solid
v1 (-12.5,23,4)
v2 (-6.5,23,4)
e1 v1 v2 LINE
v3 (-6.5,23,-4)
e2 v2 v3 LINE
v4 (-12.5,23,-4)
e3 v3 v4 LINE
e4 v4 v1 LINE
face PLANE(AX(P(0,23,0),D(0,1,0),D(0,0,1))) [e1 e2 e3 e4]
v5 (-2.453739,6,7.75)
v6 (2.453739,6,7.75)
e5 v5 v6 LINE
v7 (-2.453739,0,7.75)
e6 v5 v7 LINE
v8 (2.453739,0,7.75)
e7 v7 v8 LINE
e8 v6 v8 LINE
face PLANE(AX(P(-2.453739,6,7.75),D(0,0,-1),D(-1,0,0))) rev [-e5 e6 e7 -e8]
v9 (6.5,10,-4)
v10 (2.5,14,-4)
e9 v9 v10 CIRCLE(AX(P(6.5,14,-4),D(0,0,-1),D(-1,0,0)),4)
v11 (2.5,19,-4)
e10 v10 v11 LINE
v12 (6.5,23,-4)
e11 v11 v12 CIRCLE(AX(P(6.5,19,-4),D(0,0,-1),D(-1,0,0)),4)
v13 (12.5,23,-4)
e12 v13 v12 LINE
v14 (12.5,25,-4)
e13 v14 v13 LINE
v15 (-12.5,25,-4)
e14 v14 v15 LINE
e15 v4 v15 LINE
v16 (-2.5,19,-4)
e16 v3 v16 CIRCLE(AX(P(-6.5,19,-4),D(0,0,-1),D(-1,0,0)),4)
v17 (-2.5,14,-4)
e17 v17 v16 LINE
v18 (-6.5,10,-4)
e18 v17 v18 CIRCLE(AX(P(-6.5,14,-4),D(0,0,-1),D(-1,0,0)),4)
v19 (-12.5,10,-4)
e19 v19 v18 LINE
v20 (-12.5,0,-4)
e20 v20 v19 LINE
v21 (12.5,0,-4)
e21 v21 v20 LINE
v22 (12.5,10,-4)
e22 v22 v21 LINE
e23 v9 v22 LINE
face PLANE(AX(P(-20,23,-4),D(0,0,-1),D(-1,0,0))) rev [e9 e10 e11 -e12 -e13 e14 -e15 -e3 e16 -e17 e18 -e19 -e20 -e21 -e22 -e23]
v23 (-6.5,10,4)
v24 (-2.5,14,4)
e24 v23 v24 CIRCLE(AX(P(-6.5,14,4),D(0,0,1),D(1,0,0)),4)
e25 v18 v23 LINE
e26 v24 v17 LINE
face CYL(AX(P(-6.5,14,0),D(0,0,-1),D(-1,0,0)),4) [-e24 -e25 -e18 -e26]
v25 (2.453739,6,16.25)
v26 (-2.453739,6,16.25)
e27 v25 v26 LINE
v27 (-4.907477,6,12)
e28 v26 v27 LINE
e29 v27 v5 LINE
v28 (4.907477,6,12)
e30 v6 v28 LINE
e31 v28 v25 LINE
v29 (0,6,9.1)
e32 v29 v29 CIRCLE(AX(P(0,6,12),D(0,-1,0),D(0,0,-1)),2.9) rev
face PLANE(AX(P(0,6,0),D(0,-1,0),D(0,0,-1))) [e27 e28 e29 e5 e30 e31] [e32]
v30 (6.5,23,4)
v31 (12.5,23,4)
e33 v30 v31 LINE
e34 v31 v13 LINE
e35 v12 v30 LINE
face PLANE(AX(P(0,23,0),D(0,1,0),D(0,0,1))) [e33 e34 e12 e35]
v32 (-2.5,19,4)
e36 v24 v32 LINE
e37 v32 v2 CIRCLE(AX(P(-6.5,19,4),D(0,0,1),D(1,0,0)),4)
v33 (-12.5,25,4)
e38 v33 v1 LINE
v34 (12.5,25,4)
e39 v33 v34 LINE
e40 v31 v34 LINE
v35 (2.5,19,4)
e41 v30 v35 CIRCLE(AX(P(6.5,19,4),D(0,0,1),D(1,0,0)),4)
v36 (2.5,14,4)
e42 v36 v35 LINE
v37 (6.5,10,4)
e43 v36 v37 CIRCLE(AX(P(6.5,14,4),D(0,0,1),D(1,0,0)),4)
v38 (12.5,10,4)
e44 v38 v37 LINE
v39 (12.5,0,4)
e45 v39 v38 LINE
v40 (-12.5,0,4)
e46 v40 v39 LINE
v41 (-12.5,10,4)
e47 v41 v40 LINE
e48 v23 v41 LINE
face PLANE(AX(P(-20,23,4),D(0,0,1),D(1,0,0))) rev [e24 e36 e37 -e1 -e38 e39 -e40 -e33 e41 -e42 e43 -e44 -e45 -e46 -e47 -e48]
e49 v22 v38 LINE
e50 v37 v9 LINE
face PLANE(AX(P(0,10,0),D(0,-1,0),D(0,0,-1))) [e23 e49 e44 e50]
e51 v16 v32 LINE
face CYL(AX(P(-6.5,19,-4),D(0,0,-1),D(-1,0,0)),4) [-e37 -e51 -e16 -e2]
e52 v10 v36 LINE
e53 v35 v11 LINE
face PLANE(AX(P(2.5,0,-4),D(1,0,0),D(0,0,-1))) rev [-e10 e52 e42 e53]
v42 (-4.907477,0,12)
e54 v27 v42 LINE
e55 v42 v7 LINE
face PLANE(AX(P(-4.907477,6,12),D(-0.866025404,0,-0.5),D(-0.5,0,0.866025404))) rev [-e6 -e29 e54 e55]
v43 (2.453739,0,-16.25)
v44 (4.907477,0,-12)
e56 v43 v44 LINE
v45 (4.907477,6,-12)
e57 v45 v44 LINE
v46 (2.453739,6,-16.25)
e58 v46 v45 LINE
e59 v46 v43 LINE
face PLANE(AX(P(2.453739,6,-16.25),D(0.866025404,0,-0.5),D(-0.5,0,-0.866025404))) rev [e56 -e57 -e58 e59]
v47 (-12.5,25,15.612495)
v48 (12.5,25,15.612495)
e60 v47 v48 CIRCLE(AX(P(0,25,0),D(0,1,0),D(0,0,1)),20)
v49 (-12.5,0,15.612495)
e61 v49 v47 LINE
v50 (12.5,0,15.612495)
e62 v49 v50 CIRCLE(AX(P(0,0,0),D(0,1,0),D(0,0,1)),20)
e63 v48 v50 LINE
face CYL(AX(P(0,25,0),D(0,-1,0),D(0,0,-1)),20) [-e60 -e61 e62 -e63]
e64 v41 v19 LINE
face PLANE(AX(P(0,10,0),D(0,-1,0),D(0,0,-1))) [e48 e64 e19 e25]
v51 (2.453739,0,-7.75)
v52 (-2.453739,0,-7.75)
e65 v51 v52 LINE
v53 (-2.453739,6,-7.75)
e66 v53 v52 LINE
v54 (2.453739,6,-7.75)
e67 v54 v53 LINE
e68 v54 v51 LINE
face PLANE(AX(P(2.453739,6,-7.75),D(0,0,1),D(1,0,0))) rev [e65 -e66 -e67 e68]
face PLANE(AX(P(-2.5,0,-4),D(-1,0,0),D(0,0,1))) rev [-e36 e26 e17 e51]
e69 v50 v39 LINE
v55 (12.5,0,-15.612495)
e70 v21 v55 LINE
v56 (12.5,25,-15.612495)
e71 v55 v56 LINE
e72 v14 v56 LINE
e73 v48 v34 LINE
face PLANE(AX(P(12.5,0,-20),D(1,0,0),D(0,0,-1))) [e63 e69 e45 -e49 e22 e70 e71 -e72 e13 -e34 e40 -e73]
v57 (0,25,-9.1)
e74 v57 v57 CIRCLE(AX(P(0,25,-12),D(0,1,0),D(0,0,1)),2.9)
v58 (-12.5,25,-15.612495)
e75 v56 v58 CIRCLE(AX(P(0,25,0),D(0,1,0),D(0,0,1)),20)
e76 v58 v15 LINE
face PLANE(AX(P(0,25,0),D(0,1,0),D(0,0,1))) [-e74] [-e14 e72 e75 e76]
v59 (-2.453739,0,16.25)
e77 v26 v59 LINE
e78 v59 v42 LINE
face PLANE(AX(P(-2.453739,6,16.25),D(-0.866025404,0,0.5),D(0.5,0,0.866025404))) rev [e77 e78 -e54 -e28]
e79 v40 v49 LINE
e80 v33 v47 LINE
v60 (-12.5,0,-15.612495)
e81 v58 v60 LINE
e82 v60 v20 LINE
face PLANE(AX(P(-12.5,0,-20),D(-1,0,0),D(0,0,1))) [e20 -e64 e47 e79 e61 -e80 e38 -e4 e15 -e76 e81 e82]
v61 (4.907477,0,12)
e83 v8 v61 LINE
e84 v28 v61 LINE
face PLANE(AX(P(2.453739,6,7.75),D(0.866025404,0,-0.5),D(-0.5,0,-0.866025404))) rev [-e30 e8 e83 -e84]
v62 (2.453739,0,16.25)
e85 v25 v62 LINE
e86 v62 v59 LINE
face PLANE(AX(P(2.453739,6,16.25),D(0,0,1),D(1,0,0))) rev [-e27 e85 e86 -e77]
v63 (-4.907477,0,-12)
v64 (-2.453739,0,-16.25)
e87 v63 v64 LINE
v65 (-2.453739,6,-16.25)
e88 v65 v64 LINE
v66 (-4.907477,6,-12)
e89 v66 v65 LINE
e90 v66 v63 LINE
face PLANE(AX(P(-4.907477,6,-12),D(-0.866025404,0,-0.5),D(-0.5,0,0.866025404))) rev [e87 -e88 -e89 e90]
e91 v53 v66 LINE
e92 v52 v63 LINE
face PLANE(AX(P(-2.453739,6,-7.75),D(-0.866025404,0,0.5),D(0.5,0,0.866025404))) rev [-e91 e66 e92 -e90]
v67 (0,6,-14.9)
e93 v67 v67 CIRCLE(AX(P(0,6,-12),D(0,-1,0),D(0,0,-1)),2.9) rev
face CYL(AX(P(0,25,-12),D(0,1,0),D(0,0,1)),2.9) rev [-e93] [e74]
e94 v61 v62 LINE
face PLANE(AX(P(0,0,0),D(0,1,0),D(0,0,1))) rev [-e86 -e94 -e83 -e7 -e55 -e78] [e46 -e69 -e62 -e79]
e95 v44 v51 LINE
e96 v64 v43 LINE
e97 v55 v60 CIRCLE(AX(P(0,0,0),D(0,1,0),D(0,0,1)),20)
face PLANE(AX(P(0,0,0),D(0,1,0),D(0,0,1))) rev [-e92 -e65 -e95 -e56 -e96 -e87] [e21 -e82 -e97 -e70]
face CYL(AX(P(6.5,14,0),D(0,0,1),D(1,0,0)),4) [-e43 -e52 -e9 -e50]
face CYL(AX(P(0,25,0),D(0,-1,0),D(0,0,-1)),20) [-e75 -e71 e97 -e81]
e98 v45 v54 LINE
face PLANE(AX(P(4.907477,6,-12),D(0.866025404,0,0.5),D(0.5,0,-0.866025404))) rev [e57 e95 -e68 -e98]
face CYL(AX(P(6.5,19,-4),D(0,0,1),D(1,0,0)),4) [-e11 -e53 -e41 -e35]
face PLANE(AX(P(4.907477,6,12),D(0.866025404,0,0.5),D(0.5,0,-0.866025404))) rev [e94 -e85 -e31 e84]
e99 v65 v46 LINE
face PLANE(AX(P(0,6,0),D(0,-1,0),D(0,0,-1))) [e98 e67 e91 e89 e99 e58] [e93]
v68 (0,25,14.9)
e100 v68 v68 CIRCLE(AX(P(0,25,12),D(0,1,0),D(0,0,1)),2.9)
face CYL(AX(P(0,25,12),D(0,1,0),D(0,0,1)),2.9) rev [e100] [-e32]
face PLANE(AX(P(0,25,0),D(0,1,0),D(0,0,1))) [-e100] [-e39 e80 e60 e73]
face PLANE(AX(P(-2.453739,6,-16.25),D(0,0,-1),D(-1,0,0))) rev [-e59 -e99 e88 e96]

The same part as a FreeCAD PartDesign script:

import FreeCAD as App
import Part
import Sketcher
from FreeCAD import Vector
Q = App.Units.Quantity


def edges_at(feature, points):
    """Names of the edges that pass closest to the given points."""
    edges = feature.Shape.Edges
    near = lambda p: min(range(len(edges)), key=lambda i: edges[i].distToShape(Part.Vertex(*p))[0])
    return sorted({f"Edge{near(p) + 1}" for p in points})


def add_polygon(sketch, points):
    """Adds a closed chain of lines whose ends are joined by coincident constraints."""
    first, n = sketch.GeometryCount, len(points)
    for a, b in zip(points, points[1:] + points[:1]):
        sketch.addGeometry(Part.LineSegment(App.Vector(*a, 0), App.Vector(*b, 0)), False)
    for i in range(n):
        sketch.addConstraint(Sketcher.Constraint("Coincident", first + i, 2, first + (i + 1) % n, 1))

doc = App.newDocument("Part")
params = doc.addObject("Spreadsheet::Sheet", "Params")
for row, (alias, value) in enumerate([
    ("sketch1_diameter", "40 mm"),
    ("pad1_length", "25 mm"),
    ("sketch2_width", "40 mm"),
    ("sketch2_height", "8 mm"),
    ("pocket1_length", "2 mm"),
    ("sketch3_diameter", "5.8 mm"),
    ("hole_diameter", "5.8 mm"),
    ("pocket2_length", "6 mm"),
    ("sketch5_width", "5 mm"),
    ("sketch5_height", "8 mm"),
    ("sketch6_width", "40 mm"),
    ("sketch6_height", "8 mm"),
    ("pocket4_length", "10 mm"),
    ("fillet_radius", "4 mm"),
    ("sketch7_width", "25 mm"),
    ("sketch7_height", "40 mm"),
    ("sketch7_width2", "54.37 mm"),
], start=1):
    params.set(f"A{row}", alias)
    params.set(f"B{row}", "=" + value)
    params.setAlias(f"B{row}", alias)

body = doc.addObject("PartDesign::Body", "Body")

sketch1 = body.newObject("Sketcher::SketchObject", "Sketch")
sketch1.AttachmentSupport = (doc.getObject("XZ_Plane"), [""])
sketch1.MapMode = "FlatFace"
sketch1.addGeometry(Part.Circle(Vector(0, 0, 0), Vector(0, 0, 1), 20), False)
sketch1.addConstraint(Sketcher.Constraint("Coincident", 0, 3, -1, 1))
sketch1.addConstraint(Sketcher.Constraint("Diameter", 0, 40.0))
sketch1.setExpression("Constraints[1]", "Params.sketch1_diameter")
pad1 = body.newObject("PartDesign::Pad", "Pad")
pad1.Profile = sketch1
pad1.setExpression("Length", "Params.pad1_length")
pad1.Reversed = True

sketch2 = body.newObject("Sketcher::SketchObject", "Sketch001")
sketch2.AttachmentSupport = (doc.getObject("XZ_Plane"), [""])
sketch2.MapMode = "FlatFace"
sketch2.AttachmentOffset = App.Placement(Vector(0, 0, -25), App.Rotation())
add_polygon(sketch2, [(-20, -4), (-20, 4), (20, 4), (20, -4)])
sketch2.addConstraint(Sketcher.Constraint("Vertical", 0))
sketch2.addConstraint(Sketcher.Constraint("Horizontal", 1))
sketch2.addConstraint(Sketcher.Constraint("Vertical", 2))
sketch2.addConstraint(Sketcher.Constraint("Horizontal", 3))
sketch2.addConstraint(Sketcher.Constraint("Symmetric", 0, 2, 2, 2, -1, 1))
sketch2.addConstraint(Sketcher.Constraint("DistanceX", 1, 1, 1, 2, 40.0))
sketch2.addConstraint(Sketcher.Constraint("DistanceY", 0, 1, 0, 2, 8.0))
sketch2.setExpression("Constraints[9]", "Params.sketch2_width")
sketch2.setExpression("Constraints[10]", "Params.sketch2_height")
pocket1 = body.newObject("PartDesign::Pocket", "Pocket")
pocket1.Profile = sketch2
pocket1.setExpression("Length", "Params.pocket1_length")
pocket1.Reversed = True

sketch3 = body.newObject("Sketcher::SketchObject", "Sketch002")
sketch3.AttachmentSupport = (doc.getObject("XZ_Plane"), [""])
sketch3.MapMode = "FlatFace"
sketch3.AttachmentOffset = App.Placement(Vector(0, 0, -25), App.Rotation())
sketch3.addGeometry(Part.Circle(Vector(0, -12, 0), Vector(0, 0, 1), 2.9), False)
sketch3.addGeometry(Part.Circle(Vector(0, 12, 0), Vector(0, 0, 1), 2.9), False)
sketch3.addConstraint(Sketcher.Constraint("Equal", 0, 1))
sketch3.addConstraint(Sketcher.Constraint("Symmetric", 0, 3, 1, 3, -1, 1))
sketch3.addConstraint(Sketcher.Constraint("PointOnObject", 0, 3, -2))
sketch3.addConstraint(Sketcher.Constraint("Diameter", 0, 5.8))
sketch3.addConstraint(Sketcher.Constraint("DistanceY", 0, 3, -1, 1, 12.0))
sketch3.setExpression("Constraints[3]", "Params.sketch3_diameter")
doc.recompute()
hole = body.newObject("PartDesign::Hole", "Hole")
hole.Profile = sketch3
hole.ThreadType = "None"
hole.setExpression("Diameter", "Params.hole_diameter")
hole.DepthType = "ThroughAll"
hole.Reversed = True

sketch4 = body.newObject("Sketcher::SketchObject", "Sketch003")
sketch4.AttachmentSupport = (doc.getObject("XZ_Plane"), [""])
sketch4.MapMode = "FlatFace"
add_polygon(sketch4, [(4.9, 12), (2.5, 16.2), (-2.5, 16.2), (-4.9, 12), (-2.5, 7.8), (2.5, 7.8)])
add_polygon(sketch4, [(4.9, -12), (2.5, -7.8), (-2.5, -7.8), (-4.9, -12), (-2.5, -16.2), (2.5, -16.2)])
sketch4.addConstraint(Sketcher.Constraint("Horizontal", 1))
sketch4.addConstraint(Sketcher.Constraint("Horizontal", 4))
sketch4.addConstraint(Sketcher.Constraint("Horizontal", 7))
sketch4.addConstraint(Sketcher.Constraint("Horizontal", 10))
sketch4.addConstraint(Sketcher.Constraint("Symmetric", 3, 2, 6, 2, -1, 1))
sketch4.addConstraint(Sketcher.Constraint("Symmetric", 5, 2, 8, 2, -1, 1))
sketch4.addConstraint(Sketcher.Constraint("Symmetric", 0, 2, 9, 2, -1, 1))
sketch4.addConstraint(Sketcher.Constraint("Symmetric", 2, 2, 11, 2, -1, 1))
sketch4.addConstraint(Sketcher.Constraint("Symmetric", 2, 2, 5, 2, -2))
sketch4.addConstraint(Sketcher.Constraint("Parallel", 0, 3))
sketch4.addConstraint(Sketcher.Constraint("Parallel", 2, 5))
sketch4.addConstraint(Sketcher.Constraint("Parallel", 5, 8))
sketch4.addConstraint(Sketcher.Constraint("Parallel", 8, 11))
sketch4.addConstraint(Sketcher.Constraint("Vertical", 1, 2, 3, 2))
sketch4.addConstraint(Sketcher.Constraint("Vertical", 0, 2, 4, 2))
sketch4.addConstraint(Sketcher.Constraint("Angle", 0, Q("120 deg")))
sketch4.addConstraint(Sketcher.Constraint("DistanceY", -1, 1, 2, 2, 12.0))
sketch4.addConstraint(Sketcher.Constraint("DistanceY", 3, 2, 1, 2, 8.5))
sketch4.addConstraint(Sketcher.Constraint("DistanceX", 1, 2, 1, 1, 4.907477))
pocket2 = body.newObject("PartDesign::Pocket", "Pocket001")
pocket2.Profile = sketch4
pocket2.setExpression("Length", "Params.pocket2_length")

sketch5 = body.newObject("Sketcher::SketchObject", "Sketch004")
sketch5.AttachmentSupport = (doc.getObject("XZ_Plane"), [""])
sketch5.MapMode = "FlatFace"
sketch5.AttachmentOffset = App.Placement(Vector(0, 0, -23), App.Rotation())
add_polygon(sketch5, [(-2, -4), (-2, 4), (2, 4), (2, -4)])
sketch5.addConstraint(Sketcher.Constraint("Vertical", 0))
sketch5.addConstraint(Sketcher.Constraint("Horizontal", 1))
sketch5.addConstraint(Sketcher.Constraint("Vertical", 2))
sketch5.addConstraint(Sketcher.Constraint("Horizontal", 3))
sketch5.addConstraint(Sketcher.Constraint("Symmetric", 0, 2, 2, 2, -1, 1))
sketch5.addConstraint(Sketcher.Constraint("DistanceX", 1, 1, 1, 2, 5.0))
sketch5.addConstraint(Sketcher.Constraint("DistanceY", 0, 1, 0, 2, 8.0))
sketch5.setExpression("Constraints[9]", "Params.sketch5_width")
sketch5.setExpression("Constraints[10]", "Params.sketch5_height")
pocket3 = body.newObject("PartDesign::Pocket", "Pocket002")
pocket3.Profile = sketch5
pocket3.Type = "ThroughAll"
pocket3.Midplane = True

sketch6 = body.newObject("Sketcher::SketchObject", "Sketch005")
sketch6.AttachmentSupport = (doc.getObject("XZ_Plane"), [""])
sketch6.MapMode = "FlatFace"
add_polygon(sketch6, [(-20, 4), (-20, -4), (20, -4), (20, 4)])
sketch6.addConstraint(Sketcher.Constraint("Vertical", 0))
sketch6.addConstraint(Sketcher.Constraint("Horizontal", 1))
sketch6.addConstraint(Sketcher.Constraint("Vertical", 2))
sketch6.addConstraint(Sketcher.Constraint("Horizontal", 3))
sketch6.addConstraint(Sketcher.Constraint("Symmetric", 0, 2, 2, 2, -1, 1))
sketch6.addConstraint(Sketcher.Constraint("DistanceX", 1, 1, 1, 2, 40.0))
sketch6.addConstraint(Sketcher.Constraint("DistanceY", 0, 2, 0, 1, 8.0))
sketch6.setExpression("Constraints[9]", "Params.sketch6_width")
sketch6.setExpression("Constraints[10]", "Params.sketch6_height")
pocket4 = body.newObject("PartDesign::Pocket", "Pocket003")
pocket4.Profile = sketch6
pocket4.setExpression("Length", "Params.pocket4_length")
doc.recompute()

fillet = body.newObject("PartDesign::Fillet", "Fillet")
fillet.Base = (pocket4, edges_at(pocket4, [
    (2.5, 10, 0),
    (-2.5, 10, 0),
    (-2.5, 23, 0),
    (2.5, 23, 0),
]))
fillet.setExpression("Radius", "Params.fillet_radius")

sketch7 = body.newObject("Sketcher::SketchObject", "Sketch006")
sketch7.AttachmentSupport = (doc.getObject("XZ_Plane"), [""])
sketch7.MapMode = "FlatFace"
sketch7.AttachmentOffset = App.Placement(Vector(0, 0, -25), App.Rotation())
add_polygon(sketch7, [(-27, -27), (-27, 27), (27, 27), (27, -27)])
add_polygon(sketch7, [(12, 20), (-12, 20), (-12, -20), (12, -20)])
sketch7.addConstraint(Sketcher.Constraint("Vertical", 0))
sketch7.addConstraint(Sketcher.Constraint("Horizontal", 1))
sketch7.addConstraint(Sketcher.Constraint("Vertical", 2))
sketch7.addConstraint(Sketcher.Constraint("Horizontal", 3))
sketch7.addConstraint(Sketcher.Constraint("Horizontal", 4))
sketch7.addConstraint(Sketcher.Constraint("Vertical", 5))
sketch7.addConstraint(Sketcher.Constraint("Horizontal", 6))
sketch7.addConstraint(Sketcher.Constraint("Vertical", 7))
sketch7.addConstraint(Sketcher.Constraint("Symmetric", 0, 2, 2, 2, -1, 1))
sketch7.addConstraint(Sketcher.Constraint("Symmetric", 4, 2, 6, 2, -1, 1))
sketch7.addConstraint(Sketcher.Constraint("Equal", 3, 0))
sketch7.addConstraint(Sketcher.Constraint("DistanceX", 4, 2, 4, 1, 25.0))
sketch7.addConstraint(Sketcher.Constraint("DistanceY", 5, 2, 5, 1, 40.0))
sketch7.addConstraint(Sketcher.Constraint("DistanceX", 1, 1, 1, 2, 54.37))
sketch7.setExpression("Constraints[19]", "Params.sketch7_width")
sketch7.setExpression("Constraints[20]", "Params.sketch7_height")
sketch7.setExpression("Constraints[21]", "Params.sketch7_width2")
pocket5 = body.newObject("PartDesign::Pocket", "Pocket004")
pocket5.Profile = sketch7
pocket5.Type = "ThroughAll"
pocket5.Reversed = True

doc.recompute()
